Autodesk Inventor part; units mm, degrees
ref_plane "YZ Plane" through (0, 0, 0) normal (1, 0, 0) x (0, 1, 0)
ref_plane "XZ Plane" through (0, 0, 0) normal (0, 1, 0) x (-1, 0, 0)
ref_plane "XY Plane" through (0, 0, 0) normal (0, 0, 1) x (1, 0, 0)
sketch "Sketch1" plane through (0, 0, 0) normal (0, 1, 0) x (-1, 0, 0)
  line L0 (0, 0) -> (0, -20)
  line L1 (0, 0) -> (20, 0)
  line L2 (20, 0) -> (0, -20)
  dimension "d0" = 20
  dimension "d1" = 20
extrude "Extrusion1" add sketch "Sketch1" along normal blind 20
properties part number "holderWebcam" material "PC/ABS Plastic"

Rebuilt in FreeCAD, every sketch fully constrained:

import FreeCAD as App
import Part
import Sketcher


def add_polygon(sketch, points):
    """Adds a closed chain of lines whose ends are joined by coincident constraints."""
    first, n = sketch.GeometryCount, len(points)
    for a, b in zip(points, points[1:] + points[:1]):
        sketch.addGeometry(Part.LineSegment(App.Vector(*a, 0), App.Vector(*b, 0)), False)
    for i in range(n):
        sketch.addConstraint(Sketcher.Constraint("Coincident", first + i, 2, first + (i + 1) % n, 1))

doc = App.newDocument("Part")
body = doc.addObject("PartDesign::Body", "Body")

# Sketch on XZ plane
sketch1 = body.newObject("Sketcher::SketchObject", "Sketch")
sketch1.AttachmentSupport = (doc.getObject("XZ_Plane"), [""])
sketch1.MapMode = "FlatFace"
add_polygon(sketch1, [(-20, 0), (0, 0), (0, -20)])  # lines 0-2
sketch1.addConstraint(Sketcher.Constraint("Horizontal", 0))
sketch1.addConstraint(Sketcher.Constraint("Vertical", 1))
sketch1.addConstraint(Sketcher.Constraint("Coincident", 0, 2, -1, 1))
sketch1.addConstraint(Sketcher.Constraint("Equal", 0, 1))
sketch1.addConstraint(Sketcher.Constraint("DistanceX", 0, 1, 0, 2, 20.0))
pad1 = body.newObject("PartDesign::Pad", "Pad")
pad1.Profile = sketch1
pad1.Length = 20
pad1.Reversed = True

doc.recompute()
